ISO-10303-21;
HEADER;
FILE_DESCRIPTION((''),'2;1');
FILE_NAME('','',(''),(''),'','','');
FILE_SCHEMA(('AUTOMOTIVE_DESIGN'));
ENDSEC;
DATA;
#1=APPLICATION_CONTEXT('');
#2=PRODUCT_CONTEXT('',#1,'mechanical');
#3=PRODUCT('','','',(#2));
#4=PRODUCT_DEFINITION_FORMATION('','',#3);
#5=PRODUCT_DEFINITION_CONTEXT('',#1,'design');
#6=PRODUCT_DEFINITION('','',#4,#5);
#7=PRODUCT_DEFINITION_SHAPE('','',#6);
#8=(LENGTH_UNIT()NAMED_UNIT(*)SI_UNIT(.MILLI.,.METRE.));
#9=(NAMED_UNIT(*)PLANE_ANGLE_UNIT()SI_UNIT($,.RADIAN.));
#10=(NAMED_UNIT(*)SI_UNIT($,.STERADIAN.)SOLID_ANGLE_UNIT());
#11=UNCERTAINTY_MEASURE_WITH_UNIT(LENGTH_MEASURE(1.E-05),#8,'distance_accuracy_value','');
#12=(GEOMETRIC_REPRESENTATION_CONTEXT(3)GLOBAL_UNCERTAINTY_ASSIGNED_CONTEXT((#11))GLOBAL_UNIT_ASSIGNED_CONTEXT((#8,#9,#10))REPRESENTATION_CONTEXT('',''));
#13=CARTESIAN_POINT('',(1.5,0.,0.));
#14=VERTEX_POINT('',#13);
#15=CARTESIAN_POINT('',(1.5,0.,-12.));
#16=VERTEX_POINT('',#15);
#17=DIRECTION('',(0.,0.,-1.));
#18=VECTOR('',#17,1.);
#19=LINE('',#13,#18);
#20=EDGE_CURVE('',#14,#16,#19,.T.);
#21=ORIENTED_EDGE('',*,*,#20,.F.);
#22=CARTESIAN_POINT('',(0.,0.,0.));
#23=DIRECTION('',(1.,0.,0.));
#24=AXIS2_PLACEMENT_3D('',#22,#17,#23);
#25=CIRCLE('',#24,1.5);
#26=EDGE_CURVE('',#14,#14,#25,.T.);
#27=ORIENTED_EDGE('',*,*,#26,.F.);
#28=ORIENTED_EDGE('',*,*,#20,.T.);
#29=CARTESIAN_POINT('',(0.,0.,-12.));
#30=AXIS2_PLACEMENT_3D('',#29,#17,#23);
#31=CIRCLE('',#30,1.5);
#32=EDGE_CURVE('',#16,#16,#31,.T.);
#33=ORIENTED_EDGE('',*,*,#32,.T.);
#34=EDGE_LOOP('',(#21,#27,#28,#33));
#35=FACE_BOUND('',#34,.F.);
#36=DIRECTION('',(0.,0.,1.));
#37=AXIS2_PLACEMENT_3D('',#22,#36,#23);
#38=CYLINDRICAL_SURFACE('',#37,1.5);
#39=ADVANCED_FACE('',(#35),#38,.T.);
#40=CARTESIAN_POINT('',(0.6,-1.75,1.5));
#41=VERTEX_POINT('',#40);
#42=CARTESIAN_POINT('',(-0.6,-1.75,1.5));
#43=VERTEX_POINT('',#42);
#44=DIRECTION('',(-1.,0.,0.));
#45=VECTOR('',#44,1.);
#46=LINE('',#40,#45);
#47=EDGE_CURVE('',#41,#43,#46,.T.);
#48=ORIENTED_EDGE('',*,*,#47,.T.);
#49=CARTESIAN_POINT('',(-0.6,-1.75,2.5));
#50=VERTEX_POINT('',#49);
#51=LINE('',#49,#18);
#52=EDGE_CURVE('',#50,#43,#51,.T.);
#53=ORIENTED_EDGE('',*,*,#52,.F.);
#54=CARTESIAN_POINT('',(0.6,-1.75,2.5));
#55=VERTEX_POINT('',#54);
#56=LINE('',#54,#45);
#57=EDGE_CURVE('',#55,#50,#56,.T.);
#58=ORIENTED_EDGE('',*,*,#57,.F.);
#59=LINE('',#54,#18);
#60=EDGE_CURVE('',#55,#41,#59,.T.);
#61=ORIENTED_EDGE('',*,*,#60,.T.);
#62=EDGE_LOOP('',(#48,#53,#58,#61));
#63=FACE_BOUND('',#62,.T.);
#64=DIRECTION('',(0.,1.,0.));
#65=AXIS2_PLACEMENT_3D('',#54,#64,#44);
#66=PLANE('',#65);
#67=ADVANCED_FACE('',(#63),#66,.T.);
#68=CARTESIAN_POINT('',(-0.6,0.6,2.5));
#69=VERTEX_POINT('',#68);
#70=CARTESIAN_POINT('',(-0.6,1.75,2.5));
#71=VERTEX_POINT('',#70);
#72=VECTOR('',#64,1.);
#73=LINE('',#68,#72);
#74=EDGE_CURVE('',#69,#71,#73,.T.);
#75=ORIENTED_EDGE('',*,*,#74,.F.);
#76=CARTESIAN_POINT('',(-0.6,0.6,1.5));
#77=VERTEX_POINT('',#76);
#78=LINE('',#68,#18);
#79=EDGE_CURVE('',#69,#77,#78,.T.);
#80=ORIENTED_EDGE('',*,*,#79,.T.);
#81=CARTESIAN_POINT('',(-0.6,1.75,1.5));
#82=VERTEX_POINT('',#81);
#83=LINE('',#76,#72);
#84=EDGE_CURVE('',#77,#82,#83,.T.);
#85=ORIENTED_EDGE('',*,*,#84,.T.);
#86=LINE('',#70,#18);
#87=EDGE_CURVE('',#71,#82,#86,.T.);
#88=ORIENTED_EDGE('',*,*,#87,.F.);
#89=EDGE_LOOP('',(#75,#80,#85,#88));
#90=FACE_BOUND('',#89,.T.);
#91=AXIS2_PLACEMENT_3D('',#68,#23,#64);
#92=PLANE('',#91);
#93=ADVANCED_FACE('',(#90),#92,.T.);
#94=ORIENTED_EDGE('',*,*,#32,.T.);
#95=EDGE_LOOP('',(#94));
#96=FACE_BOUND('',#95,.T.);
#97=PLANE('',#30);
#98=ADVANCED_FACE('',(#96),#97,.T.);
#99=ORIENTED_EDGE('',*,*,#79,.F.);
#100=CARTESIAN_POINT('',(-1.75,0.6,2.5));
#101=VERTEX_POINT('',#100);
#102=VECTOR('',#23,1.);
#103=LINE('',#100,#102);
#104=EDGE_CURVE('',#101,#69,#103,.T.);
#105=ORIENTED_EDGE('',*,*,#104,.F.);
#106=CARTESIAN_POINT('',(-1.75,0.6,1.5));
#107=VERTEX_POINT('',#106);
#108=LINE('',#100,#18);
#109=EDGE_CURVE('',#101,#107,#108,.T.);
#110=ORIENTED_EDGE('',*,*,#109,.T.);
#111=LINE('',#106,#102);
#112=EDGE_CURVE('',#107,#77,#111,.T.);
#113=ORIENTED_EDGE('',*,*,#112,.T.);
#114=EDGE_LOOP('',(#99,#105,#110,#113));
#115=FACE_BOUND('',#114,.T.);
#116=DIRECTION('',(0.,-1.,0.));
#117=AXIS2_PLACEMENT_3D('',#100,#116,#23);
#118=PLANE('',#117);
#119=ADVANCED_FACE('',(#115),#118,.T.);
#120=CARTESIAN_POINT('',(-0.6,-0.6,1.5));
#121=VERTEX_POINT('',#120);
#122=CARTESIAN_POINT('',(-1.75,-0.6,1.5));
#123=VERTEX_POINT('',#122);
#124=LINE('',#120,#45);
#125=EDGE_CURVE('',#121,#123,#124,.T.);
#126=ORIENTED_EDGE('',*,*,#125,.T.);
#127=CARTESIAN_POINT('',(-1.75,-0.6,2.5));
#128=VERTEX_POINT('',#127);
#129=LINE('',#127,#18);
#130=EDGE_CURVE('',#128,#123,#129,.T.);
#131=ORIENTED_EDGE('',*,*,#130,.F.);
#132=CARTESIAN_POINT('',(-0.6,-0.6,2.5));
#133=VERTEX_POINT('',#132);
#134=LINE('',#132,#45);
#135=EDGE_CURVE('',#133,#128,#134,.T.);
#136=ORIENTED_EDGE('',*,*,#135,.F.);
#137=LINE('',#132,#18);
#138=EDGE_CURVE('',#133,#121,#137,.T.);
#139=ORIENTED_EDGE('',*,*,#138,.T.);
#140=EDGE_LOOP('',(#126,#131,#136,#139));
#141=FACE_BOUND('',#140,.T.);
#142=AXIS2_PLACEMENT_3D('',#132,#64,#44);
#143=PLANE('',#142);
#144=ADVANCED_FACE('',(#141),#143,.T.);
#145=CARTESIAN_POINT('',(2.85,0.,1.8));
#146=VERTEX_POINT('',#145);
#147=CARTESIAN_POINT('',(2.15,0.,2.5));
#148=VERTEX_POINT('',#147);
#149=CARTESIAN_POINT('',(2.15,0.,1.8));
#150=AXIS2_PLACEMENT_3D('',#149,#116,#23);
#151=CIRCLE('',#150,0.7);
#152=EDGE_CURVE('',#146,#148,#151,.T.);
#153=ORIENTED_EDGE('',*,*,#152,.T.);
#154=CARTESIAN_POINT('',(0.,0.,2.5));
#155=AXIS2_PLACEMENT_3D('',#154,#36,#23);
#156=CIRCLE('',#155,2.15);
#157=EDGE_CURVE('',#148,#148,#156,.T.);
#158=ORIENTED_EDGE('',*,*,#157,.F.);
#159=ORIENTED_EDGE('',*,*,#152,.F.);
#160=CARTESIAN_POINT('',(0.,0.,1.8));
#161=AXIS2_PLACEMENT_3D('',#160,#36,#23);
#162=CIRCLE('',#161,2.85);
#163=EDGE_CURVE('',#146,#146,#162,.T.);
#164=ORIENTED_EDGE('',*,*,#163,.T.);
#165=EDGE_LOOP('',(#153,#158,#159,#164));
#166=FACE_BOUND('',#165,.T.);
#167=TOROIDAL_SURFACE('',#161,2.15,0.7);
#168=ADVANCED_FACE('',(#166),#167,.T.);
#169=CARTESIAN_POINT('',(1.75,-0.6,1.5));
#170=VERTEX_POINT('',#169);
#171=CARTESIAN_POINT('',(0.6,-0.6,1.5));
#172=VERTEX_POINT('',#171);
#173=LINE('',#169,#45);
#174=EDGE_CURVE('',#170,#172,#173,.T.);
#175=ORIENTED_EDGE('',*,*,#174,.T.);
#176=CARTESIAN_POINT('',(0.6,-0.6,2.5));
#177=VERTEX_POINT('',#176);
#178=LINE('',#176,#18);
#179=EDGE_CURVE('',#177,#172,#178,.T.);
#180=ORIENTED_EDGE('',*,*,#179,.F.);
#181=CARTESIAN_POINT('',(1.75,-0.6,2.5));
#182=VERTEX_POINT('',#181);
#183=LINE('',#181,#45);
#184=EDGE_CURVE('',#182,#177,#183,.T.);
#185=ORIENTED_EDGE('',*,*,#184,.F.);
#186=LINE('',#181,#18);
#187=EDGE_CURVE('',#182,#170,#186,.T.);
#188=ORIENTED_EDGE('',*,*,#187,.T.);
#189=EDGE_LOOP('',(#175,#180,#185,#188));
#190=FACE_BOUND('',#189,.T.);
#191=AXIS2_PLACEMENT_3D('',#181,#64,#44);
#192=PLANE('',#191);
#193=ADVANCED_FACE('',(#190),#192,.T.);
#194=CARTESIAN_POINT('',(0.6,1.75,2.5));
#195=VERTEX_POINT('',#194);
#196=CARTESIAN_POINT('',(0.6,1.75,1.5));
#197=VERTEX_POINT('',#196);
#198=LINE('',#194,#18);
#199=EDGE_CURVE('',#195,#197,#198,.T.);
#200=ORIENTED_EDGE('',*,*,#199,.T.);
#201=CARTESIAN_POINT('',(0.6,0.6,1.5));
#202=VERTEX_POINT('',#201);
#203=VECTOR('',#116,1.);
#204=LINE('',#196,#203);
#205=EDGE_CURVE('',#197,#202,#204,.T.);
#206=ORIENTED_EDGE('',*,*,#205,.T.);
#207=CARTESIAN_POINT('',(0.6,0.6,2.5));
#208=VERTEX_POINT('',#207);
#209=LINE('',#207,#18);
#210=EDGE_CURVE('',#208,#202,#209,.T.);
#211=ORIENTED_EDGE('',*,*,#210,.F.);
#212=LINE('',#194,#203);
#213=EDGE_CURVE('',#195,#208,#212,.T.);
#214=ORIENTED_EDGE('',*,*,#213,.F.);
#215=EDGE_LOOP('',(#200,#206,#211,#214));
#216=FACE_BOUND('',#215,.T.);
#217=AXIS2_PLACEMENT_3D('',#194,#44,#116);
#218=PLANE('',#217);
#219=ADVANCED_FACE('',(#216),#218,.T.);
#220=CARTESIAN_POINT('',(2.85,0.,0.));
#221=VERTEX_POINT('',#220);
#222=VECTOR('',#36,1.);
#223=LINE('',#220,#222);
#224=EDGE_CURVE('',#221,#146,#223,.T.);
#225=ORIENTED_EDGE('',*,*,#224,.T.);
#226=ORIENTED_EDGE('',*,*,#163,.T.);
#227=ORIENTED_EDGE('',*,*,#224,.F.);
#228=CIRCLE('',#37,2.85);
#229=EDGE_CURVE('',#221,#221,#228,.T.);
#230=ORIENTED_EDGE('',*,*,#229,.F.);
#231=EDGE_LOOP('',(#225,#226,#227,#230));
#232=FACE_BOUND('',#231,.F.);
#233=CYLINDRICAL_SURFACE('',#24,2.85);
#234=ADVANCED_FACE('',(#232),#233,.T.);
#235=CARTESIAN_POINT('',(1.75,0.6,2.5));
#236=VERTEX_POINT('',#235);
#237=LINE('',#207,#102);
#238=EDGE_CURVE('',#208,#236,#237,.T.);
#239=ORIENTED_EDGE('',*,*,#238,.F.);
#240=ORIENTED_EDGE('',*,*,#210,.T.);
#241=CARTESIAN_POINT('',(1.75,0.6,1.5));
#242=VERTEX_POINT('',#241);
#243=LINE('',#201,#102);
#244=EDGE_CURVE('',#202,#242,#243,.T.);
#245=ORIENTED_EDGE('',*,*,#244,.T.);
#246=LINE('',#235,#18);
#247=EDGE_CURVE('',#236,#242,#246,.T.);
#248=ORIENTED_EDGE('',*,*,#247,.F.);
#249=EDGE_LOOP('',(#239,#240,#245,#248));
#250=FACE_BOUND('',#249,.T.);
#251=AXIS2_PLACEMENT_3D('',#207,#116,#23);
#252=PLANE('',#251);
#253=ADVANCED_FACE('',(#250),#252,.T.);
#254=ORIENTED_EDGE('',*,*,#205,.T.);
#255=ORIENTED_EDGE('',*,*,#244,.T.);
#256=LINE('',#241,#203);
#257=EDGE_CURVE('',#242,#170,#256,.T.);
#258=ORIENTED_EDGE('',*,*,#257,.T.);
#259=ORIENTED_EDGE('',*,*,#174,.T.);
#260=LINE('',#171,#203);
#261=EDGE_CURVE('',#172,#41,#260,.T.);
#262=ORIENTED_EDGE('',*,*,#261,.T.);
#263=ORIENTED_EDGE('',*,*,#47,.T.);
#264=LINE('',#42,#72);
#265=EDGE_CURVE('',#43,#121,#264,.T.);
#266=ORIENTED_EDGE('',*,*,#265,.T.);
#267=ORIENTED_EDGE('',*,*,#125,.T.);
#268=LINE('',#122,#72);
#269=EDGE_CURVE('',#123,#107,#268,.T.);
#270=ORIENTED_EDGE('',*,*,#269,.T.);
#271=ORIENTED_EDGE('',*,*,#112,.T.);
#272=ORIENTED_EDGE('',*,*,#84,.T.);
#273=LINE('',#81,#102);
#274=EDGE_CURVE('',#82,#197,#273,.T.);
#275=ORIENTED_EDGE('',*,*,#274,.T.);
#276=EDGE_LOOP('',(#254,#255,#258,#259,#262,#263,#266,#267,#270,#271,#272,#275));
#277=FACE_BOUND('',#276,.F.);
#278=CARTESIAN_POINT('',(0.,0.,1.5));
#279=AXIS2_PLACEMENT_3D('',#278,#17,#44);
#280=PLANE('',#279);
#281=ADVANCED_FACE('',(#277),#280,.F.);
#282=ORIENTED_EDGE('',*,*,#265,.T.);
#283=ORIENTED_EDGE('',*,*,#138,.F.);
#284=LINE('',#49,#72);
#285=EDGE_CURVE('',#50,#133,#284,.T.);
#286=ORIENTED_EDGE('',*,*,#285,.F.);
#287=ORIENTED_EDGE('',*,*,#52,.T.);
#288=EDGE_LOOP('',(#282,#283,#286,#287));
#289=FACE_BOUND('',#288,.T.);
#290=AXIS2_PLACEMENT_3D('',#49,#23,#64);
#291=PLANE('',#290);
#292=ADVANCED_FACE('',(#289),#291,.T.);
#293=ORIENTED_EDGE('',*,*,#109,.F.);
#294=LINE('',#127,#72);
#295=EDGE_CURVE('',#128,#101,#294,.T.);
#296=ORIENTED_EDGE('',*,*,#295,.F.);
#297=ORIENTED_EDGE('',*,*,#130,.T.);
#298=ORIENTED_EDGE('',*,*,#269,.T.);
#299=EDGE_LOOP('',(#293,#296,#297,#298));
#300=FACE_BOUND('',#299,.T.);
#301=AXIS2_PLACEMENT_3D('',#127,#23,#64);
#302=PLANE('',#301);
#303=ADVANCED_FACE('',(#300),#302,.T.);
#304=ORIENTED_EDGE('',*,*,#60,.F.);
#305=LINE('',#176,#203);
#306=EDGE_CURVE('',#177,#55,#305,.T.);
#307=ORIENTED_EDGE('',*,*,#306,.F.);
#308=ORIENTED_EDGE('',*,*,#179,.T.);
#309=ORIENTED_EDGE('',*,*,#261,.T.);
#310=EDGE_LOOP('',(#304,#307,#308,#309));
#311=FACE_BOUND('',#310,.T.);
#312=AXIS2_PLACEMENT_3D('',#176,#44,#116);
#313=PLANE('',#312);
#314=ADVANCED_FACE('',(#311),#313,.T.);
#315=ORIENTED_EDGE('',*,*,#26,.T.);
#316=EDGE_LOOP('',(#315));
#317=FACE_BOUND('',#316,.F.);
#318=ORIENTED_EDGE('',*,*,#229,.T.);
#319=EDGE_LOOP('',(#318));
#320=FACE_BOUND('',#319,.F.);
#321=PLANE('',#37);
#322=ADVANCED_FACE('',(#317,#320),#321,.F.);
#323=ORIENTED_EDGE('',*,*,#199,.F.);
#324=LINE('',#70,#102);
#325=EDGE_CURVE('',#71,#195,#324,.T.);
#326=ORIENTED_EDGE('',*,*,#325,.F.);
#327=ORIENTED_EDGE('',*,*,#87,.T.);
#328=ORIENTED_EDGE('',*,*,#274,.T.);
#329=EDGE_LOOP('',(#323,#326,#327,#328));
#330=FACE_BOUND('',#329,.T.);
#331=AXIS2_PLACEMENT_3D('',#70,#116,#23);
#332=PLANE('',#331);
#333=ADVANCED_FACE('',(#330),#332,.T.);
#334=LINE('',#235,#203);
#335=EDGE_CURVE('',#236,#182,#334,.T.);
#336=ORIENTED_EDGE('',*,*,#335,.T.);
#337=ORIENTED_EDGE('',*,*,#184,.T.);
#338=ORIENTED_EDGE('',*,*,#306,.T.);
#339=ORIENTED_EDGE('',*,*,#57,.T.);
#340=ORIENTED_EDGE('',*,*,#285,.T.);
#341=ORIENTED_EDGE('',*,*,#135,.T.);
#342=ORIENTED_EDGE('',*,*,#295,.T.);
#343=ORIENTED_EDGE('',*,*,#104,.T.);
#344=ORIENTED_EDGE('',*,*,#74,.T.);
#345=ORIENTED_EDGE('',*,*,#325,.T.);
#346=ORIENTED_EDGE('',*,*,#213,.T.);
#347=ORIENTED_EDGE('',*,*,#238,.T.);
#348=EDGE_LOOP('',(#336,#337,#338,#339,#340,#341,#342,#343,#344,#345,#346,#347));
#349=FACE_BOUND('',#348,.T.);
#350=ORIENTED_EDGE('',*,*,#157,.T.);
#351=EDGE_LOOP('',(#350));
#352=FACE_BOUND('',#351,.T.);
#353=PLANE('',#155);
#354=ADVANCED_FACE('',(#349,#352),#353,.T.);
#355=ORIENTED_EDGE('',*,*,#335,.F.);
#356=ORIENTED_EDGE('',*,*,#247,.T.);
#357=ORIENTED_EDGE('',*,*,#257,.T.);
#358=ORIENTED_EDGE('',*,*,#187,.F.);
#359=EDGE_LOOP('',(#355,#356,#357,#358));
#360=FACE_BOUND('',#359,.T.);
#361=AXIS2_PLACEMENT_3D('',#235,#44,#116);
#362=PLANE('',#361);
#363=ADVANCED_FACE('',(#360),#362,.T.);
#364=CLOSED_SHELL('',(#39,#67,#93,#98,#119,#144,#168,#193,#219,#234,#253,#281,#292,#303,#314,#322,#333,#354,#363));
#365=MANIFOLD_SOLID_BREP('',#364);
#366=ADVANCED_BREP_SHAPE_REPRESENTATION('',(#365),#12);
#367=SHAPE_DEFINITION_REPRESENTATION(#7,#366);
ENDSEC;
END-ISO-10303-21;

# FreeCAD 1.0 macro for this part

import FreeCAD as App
import Part
import Sketcher
from FreeCAD import Vector
Q = App.Units.Quantity


def edges_at(feature, points):
    """Names of the edges that pass closest to the given points."""
    edges = feature.Shape.Edges
    near = lambda p: min(range(len(edges)), key=lambda i: edges[i].distToShape(Part.Vertex(*p))[0])
    return sorted({f"Edge{near(p) + 1}" for p in points})


def add_polygon(sketch, points):
    """Adds a closed chain of lines whose ends are joined by coincident constraints."""
    first, n = sketch.GeometryCount, len(points)
    for a, b in zip(points, points[1:] + points[:1]):
        sketch.addGeometry(Part.LineSegment(App.Vector(*a, 0), App.Vector(*b, 0)), False)
    for i in range(n):
        sketch.addConstraint(Sketcher.Constraint("Coincident", first + i, 2, first + (i + 1) % n, 1))

doc = App.newDocument("Part")
params = doc.addObject("Spreadsheet::Sheet", "Params")
for row, (alias, value) in enumerate([
    ("sketch1_diameter", "5.7 mm"),
    ("pad1_length", "2.5 mm"),
    ("sketch2_width", "1.2 mm"),
    ("sketch2_width2", "1.15 mm"),
    ("pocket1_length", "1 mm"),
    ("fillet_radius", "0.7 mm"),
    ("sketch3_diameter", "3 mm"),
    ("pad2_length", "12 mm"),
], start=1):
    params.set(f"A{row}", alias)
    params.set(f"B{row}", "=" + value)
    params.setAlias(f"B{row}", alias)

body = doc.addObject("PartDesign::Body", "Body")

sketch1 = doc.addObject("Sketcher::SketchObject", "Sketch")
body.addObject(sketch1)
sketch1.AttachmentSupport = (doc.XY_Plane, [""])
sketch1.MapMode = "FlatFace"
sketch1.addGeometry(Part.Circle(Vector(0, 0, 0), Vector(0, 0, 1), 2.9), False)
sketch1.addConstraint([
    Sketcher.Constraint("Coincident", 0, 3, -1, 1),
    Sketcher.Constraint("Diameter", 0, Q("5.7 mm")),
])
sketch1.setExpression("Constraints[1]", "Params.sketch1_diameter")
pad1 = doc.addObject("PartDesign::Pad", "Pad")
body.addObject(pad1)
pad1.Profile = sketch1
pad1.setExpression("Length", "Params.pad1_length")

sketch2 = doc.addObject("Sketcher::SketchObject", "Sketch001")
body.addObject(sketch2)
sketch2.AttachmentSupport = (doc.XY_Plane, [""])
sketch2.MapMode = "FlatFace"
sketch2.AttachmentOffset = App.Placement(Vector(0, 0, 2.5), App.Rotation())
add_polygon(sketch2, [(0.6, 1.8), (-0.6, 1.8), (-0.6, 0.6), (-1.8, 0.6), (-1.8, -0.6), (-0.6, -0.6), (-0.6, -1.8), (0.6, -1.8), (0.6, -0.6), (1.8, -0.6), (1.8, 0.6), (0.6, 0.6)])
sketch2.addConstraint([
    Sketcher.Constraint("Horizontal", 0),
    Sketcher.Constraint("Vertical", 1),
    Sketcher.Constraint("Horizontal", 2),
    Sketcher.Constraint("Vertical", 3),
    Sketcher.Constraint("Horizontal", 4),
    Sketcher.Constraint("Vertical", 5),
    Sketcher.Constraint("Horizontal", 6),
    Sketcher.Constraint("Vertical", 7),
    Sketcher.Constraint("Horizontal", 8),
    Sketcher.Constraint("Vertical", 9),
    Sketcher.Constraint("Horizontal", 10),
    Sketcher.Constraint("Vertical", 11),
    Sketcher.Constraint("Symmetric", 0, 2, 6, 2, -1, 1),
    Sketcher.Constraint("Symmetric", 2, 2, 8, 2, -1, 1),
    Sketcher.Constraint("Symmetric", 4, 2, 10, 2, -1, 1),
    Sketcher.Constraint("Symmetric", 4, 2, 7, 2, -2),
    Sketcher.Constraint("Equal", 10, 1),
    Sketcher.Constraint("Equal", 6, 3),
    Sketcher.Constraint("DistanceX", 0, 2, 0, 1, Q("1.2 mm")),
    Sketcher.Constraint("DistanceX", 2, 2, 2, 1, Q("1.15 mm")),
])
sketch2.setExpression("Constraints[30]", "Params.sketch2_width")
sketch2.setExpression("Constraints[31]", "Params.sketch2_width2")
pocket1 = doc.addObject("PartDesign::Pocket", "Pocket")
body.addObject(pocket1)
pocket1.Profile = sketch2
pocket1.setExpression("Length", "Params.pocket1_length")
doc.recompute()

fillet = doc.addObject("PartDesign::Fillet", "Fillet")
body.addObject(fillet)
fillet.Base = (pocket1, edges_at(pocket1, [(-2.85, 0, 2.5)]))
fillet.setExpression("Radius", "Params.fillet_radius")

sketch3 = doc.addObject("Sketcher::SketchObject", "Sketch002")
body.addObject(sketch3)
sketch3.AttachmentSupport = (doc.XY_Plane, [""])
sketch3.MapMode = "FlatFace"
sketch3.addGeometry(Part.Circle(Vector(0, 0, 0), Vector(0, 0, 1), 1.5), False)
sketch3.addConstraint([
    Sketcher.Constraint("Coincident", 0, 3, -1, 1),
    Sketcher.Constraint("Diameter", 0, Q("3 mm")),
])
sketch3.setExpression("Constraints[1]", "Params.sketch3_diameter")
pad2 = doc.addObject("PartDesign::Pad", "Pad001")
body.addObject(pad2)
pad2.Profile = sketch3
pad2.setExpression("Length", "Params.pad2_length")
pad2.Reversed = True

doc.recompute()
